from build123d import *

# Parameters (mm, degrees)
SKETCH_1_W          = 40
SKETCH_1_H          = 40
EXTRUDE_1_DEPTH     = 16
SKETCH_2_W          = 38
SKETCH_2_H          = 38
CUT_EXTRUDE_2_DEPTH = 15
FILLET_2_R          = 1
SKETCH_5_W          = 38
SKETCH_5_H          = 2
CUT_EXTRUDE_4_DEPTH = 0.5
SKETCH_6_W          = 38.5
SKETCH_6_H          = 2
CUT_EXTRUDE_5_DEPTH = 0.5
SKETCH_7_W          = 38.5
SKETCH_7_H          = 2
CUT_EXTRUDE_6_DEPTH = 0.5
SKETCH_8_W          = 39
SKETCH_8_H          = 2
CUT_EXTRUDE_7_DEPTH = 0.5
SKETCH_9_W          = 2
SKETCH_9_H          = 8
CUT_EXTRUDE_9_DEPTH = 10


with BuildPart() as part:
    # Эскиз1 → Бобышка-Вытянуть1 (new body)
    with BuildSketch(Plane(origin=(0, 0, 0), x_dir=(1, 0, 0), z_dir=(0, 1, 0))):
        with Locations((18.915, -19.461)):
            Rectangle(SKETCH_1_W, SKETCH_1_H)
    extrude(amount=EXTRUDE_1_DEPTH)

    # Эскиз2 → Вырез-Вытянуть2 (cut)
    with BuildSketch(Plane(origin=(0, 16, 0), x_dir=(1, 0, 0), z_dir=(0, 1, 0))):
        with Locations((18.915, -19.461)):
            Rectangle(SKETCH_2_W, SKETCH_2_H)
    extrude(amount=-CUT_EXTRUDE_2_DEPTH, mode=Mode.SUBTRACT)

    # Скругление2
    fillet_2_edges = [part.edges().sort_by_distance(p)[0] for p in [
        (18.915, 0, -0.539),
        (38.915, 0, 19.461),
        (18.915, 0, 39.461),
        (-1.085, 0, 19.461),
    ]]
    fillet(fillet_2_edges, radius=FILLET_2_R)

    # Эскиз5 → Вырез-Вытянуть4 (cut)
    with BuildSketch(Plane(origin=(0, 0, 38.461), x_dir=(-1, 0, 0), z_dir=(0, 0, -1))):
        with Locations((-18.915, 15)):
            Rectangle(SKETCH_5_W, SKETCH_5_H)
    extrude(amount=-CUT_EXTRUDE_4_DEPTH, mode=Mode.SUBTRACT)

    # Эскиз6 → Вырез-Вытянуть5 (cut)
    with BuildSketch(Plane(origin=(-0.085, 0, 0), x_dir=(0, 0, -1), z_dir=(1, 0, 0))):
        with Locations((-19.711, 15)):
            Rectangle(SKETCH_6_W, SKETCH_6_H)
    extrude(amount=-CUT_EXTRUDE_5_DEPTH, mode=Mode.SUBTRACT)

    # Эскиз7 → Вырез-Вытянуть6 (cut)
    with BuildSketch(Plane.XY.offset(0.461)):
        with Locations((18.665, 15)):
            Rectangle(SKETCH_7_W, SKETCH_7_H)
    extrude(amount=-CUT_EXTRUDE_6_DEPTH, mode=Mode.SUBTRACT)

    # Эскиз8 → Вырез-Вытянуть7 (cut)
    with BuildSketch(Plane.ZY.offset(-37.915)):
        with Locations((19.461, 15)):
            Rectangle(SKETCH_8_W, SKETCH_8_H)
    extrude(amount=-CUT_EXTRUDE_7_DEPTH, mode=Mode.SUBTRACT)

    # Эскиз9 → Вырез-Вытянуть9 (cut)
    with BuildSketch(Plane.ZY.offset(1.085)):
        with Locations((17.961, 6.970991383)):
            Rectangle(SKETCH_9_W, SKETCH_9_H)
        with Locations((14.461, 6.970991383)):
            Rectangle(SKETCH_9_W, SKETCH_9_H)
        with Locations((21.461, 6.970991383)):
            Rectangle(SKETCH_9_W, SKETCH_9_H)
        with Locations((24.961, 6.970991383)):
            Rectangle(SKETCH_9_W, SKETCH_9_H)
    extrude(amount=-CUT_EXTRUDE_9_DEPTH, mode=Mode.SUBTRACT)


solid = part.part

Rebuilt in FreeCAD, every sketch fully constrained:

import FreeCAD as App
import Part
import Sketcher
from FreeCAD import Vector


def edges_at(feature, points):
    """Names of the edges that pass closest to the given points."""
    edges = feature.Shape.Edges
    near = lambda p: min(range(len(edges)), key=lambda i: edges[i].distToShape(Part.Vertex(*p))[0])
    return sorted({f"Edge{near(p) + 1}" for p in points})


def add_polygon(sketch, points):
    """Adds a closed chain of lines whose ends are joined by coincident constraints."""
    first, n = sketch.GeometryCount, len(points)
    for a, b in zip(points, points[1:] + points[:1]):
        sketch.addGeometry(Part.LineSegment(App.Vector(*a, 0), App.Vector(*b, 0)), False)
    for i in range(n):
        sketch.addConstraint(Sketcher.Constraint("Coincident", first + i, 2, first + (i + 1) % n, 1))

doc = App.newDocument("Part")
params = doc.addObject("Spreadsheet::Sheet", "Params")
for row, (alias, value) in enumerate([
    ("sketch1_width", "40 mm"),
    ("pad1_length", "16 mm"),
    ("sketch2_width", "38 mm"),
    ("pocket1_length", "15 mm"),
    ("fillet_radius", "1 mm"),
    ("sketch3_width", "38 mm"),
    ("sketch3_height", "2 mm"),
    ("pocket2_length", "0.5 mm"),
    ("sketch4_width", "2 mm"),
    ("sketch4_height", "38.5 mm"),
    ("pocket3_length", "0.5 mm"),
    ("sketch5_height", "2 mm"),
    ("sketch5_width", "38.5 mm"),
    ("pocket4_length", "0.5 mm"),
    ("sketch6_width", "2 mm"),
    ("sketch6_height", "39 mm"),
    ("pocket5_length", "0.5 mm"),
    ("sketch7_width", "8 mm"),
    ("sketch7_height", "2 mm"),
    ("pocket6_length", "10 mm"),
], start=1):
    params.set(f"A{row}", alias)
    params.set(f"B{row}", "=" + value)
    params.setAlias(f"B{row}", alias)

body = doc.addObject("PartDesign::Body", "Body")

# Sketch on XZ plane
sketch1 = doc.addObject("Sketcher::SketchObject", "Sketch")
body.addObject(sketch1)
sketch1.AttachmentSupport = (doc.XZ_Plane, [""])
sketch1.MapMode = "FlatFace"
add_polygon(sketch1, [(-1, -1), (-1, 39), (39, 39), (39, -1)])  # lines 0-3
sketch1.addConstraint([
    Sketcher.Constraint("Vertical", 0),
    Sketcher.Constraint("Horizontal", 1),
    Sketcher.Constraint("Vertical", 2),
    Sketcher.Constraint("Horizontal", 3),
    Sketcher.Constraint("Equal", 3, 0),
    Sketcher.Constraint("DistanceX", 1, 1, 1, 2, 40.0),
    Sketcher.Constraint("DistanceX", 0, 2, -1, 1, 1.085),
    Sketcher.Constraint("DistanceY", -1, 1, 0, 2, 39.461),
])
sketch1.setExpression("Constraints[9]", "Params.sketch1_width")
pad1 = doc.addObject("PartDesign::Pad", "Pad")
body.addObject(pad1)
pad1.Profile = sketch1
pad1.setExpression("Length", "Params.pad1_length")
pad1.Reversed = True

# Sketch on XZ plane
sketch2 = doc.addObject("Sketcher::SketchObject", "Sketch001")
body.addObject(sketch2)
sketch2.AttachmentSupport = (doc.XZ_Plane, [""])
sketch2.MapMode = "FlatFace"
sketch2.AttachmentOffset = App.Placement(Vector(0, 0, -16), App.Rotation())
add_polygon(sketch2, [(0, 0), (0, 38), (38, 38), (38, 0)])  # lines 0-3
sketch2.addConstraint([
    Sketcher.Constraint("Vertical", 0),
    Sketcher.Constraint("Horizontal", 1),
    Sketcher.Constraint("Vertical", 2),
    Sketcher.Constraint("Horizontal", 3),
    Sketcher.Constraint("Equal", 3, 0),
    Sketcher.Constraint("DistanceX", 1, 1, 1, 2, 38.0),
    Sketcher.Constraint("DistanceX", 0, 2, -1, 1, 0.085),
    Sketcher.Constraint("DistanceY", -1, 1, 0, 2, 38.461),
])
sketch2.setExpression("Constraints[9]", "Params.sketch2_width")
pocket1 = doc.addObject("PartDesign::Pocket", "Pocket")
body.addObject(pocket1)
pocket1.Profile = sketch2
pocket1.setExpression("Length", "Params.pocket1_length")
pocket1.Reversed = True
doc.recompute()

fillet = doc.addObject("PartDesign::Fillet", "Fillet")
body.addObject(fillet)
fillet.Base = (pocket1, edges_at(pocket1, [
    (18.915, 0, -0.539),
    (38.915, 0, 19.461),
    (18.915, 0, 39.461),
    (-1.085, 0, 19.461),
]))
fillet.setExpression("Radius", "Params.fillet_radius")

# Sketch on XY plane
sketch3 = doc.addObject("Sketcher::SketchObject", "Sketch002")
body.addObject(sketch3)
sketch3.AttachmentSupport = (doc.XY_Plane, [""])
sketch3.MapMode = "FlatFace"
sketch3.AttachmentOffset = App.Placement(Vector(0, 0, 38.461), App.Rotation())
add_polygon(sketch3, [(37.9, 16), (37.9, 14), (-0.1, 14), (-0.1, 16)])  # lines 0-3
sketch3.addConstraint([
    Sketcher.Constraint("Vertical", 0),
    Sketcher.Constraint("Horizontal", 1),
    Sketcher.Constraint("Vertical", 2),
    Sketcher.Constraint("Horizontal", 3),
    Sketcher.Constraint("DistanceX", 1, 2, 1, 1, 38.0),
    Sketcher.Constraint("DistanceY", 0, 2, 0, 1, 2.0),
    Sketcher.Constraint("DistanceY", -1, 1, 0, 2, 14.0),
    Sketcher.Constraint("DistanceX", -1, 1, 0, 2, 37.915),
])
sketch3.setExpression("Constraints[8]", "Params.sketch3_width")
sketch3.setExpression("Constraints[9]", "Params.sketch3_height")
pocket2 = doc.addObject("PartDesign::Pocket", "Pocket001")
body.addObject(pocket2)
pocket2.Profile = sketch3
pocket2.setExpression("Length", "Params.pocket2_length")
pocket2.Reversed = True

# Sketch on YZ plane
sketch4 = doc.addObject("Sketcher::SketchObject", "Sketch003")
body.addObject(sketch4)
sketch4.AttachmentSupport = (doc.YZ_Plane, [""])
sketch4.MapMode = "FlatFace"
sketch4.AttachmentOffset = App.Placement(Vector(0, 0, -0.085), App.Rotation())
add_polygon(sketch4, [(16, 39), (14, 39), (14, 0.5), (16, 0.5)])  # lines 0-3
sketch4.addConstraint([
    Sketcher.Constraint("Horizontal", 0),
    Sketcher.Constraint("Vertical", 1),
    Sketcher.Constraint("Horizontal", 2),
    Sketcher.Constraint("Vertical", 3),
    Sketcher.Constraint("DistanceX", 0, 2, 0, 1, 2.0),
    Sketcher.Constraint("DistanceY", 1, 2, 1, 1, 38.5),
    Sketcher.Constraint("DistanceX", -1, 1, 0, 2, 14.0),
    Sketcher.Constraint("DistanceY", -1, 1, 0, 2, 38.961),
])
sketch4.setExpression("Constraints[8]", "Params.sketch4_width")
sketch4.setExpression("Constraints[9]", "Params.sketch4_height")
pocket3 = doc.addObject("PartDesign::Pocket", "Pocket002")
body.addObject(pocket3)
pocket3.Profile = sketch4
pocket3.setExpression("Length", "Params.pocket3_length")

# Sketch on XY plane
sketch5 = doc.addObject("Sketcher::SketchObject", "Sketch004")
body.addObject(sketch5)
sketch5.AttachmentSupport = (doc.XY_Plane, [""])
sketch5.MapMode = "FlatFace"
sketch5.AttachmentOffset = App.Placement(Vector(0, 0, 0.461), App.Rotation())
add_polygon(sketch5, [(-0.6, 16), (-0.6, 14), (37.9, 14), (37.9, 16)])  # lines 0-3
sketch5.addConstraint([
    Sketcher.Constraint("Vertical", 0),
    Sketcher.Constraint("Horizontal", 1),
    Sketcher.Constraint("Vertical", 2),
    Sketcher.Constraint("Horizontal", 3),
    Sketcher.Constraint("DistanceY", 0, 2, 0, 1, 2.0),
    Sketcher.Constraint("DistanceX", 1, 1, 1, 2, 38.5),
    Sketcher.Constraint("DistanceY", -1, 1, 0, 2, 14.0),
    Sketcher.Constraint("DistanceX", 0, 2, -1, 1, 0.585),
])
sketch5.setExpression("Constraints[8]", "Params.sketch5_height")
sketch5.setExpression("Constraints[9]", "Params.sketch5_width")
pocket4 = doc.addObject("PartDesign::Pocket", "Pocket003")
body.addObject(pocket4)
pocket4.Profile = sketch5
pocket4.setExpression("Length", "Params.pocket4_length")

# Sketch on YZ plane
sketch6 = doc.addObject("Sketcher::SketchObject", "Sketch005")
body.addObject(sketch6)
sketch6.AttachmentSupport = (doc.YZ_Plane, [""])
sketch6.MapMode = "FlatFace"
sketch6.AttachmentOffset = App.Placement(Vector(0, 0, 37.915), App.Rotation())
add_polygon(sketch6, [(16, 0), (14, 0), (14, 39), (16, 39)])  # lines 0-3
sketch6.addConstraint([
    Sketcher.Constraint("Horizontal", 0),
    Sketcher.Constraint("Vertical", 1),
    Sketcher.Constraint("Horizontal", 2),
    Sketcher.Constraint("Vertical", 3),
    Sketcher.Constraint("DistanceX", 0, 2, 0, 1, 2.0),
    Sketcher.Constraint("DistanceY", 1, 1, 1, 2, 39.0),
    Sketcher.Constraint("DistanceX", -1, 1, 0, 2, 14.0),
    Sketcher.Constraint("DistanceY", 0, 2, -1, 1, 0.039),
])
sketch6.setExpression("Constraints[8]", "Params.sketch6_width")
sketch6.setExpression("Constraints[9]", "Params.sketch6_height")
pocket5 = doc.addObject("PartDesign::Pocket", "Pocket004")
body.addObject(pocket5)
pocket5.Profile = sketch6
pocket5.setExpression("Length", "Params.pocket5_length")
pocket5.Reversed = True

# Sketch on YZ plane
sketch7 = doc.addObject("Sketcher::SketchObject", "Sketch006")
body.addObject(sketch7)
sketch7.AttachmentSupport = (doc.YZ_Plane, [""])
sketch7.MapMode = "FlatFace"
sketch7.AttachmentOffset = App.Placement(Vector(0, 0, -1.085), App.Rotation())
add_polygon(sketch7, [(11, 17), (3, 17), (3, 19), (11, 19)])  # lines 0-3
add_polygon(sketch7, [(11, 13.5), (3, 13.5), (3, 15.5), (11, 15.5)])  # lines 4-7
add_polygon(sketch7, [(11, 20.5), (3, 20.5), (3, 22.5), (11, 22.5)])  # lines 8-11
add_polygon(sketch7, [(11, 24), (3, 24), (3, 26), (11, 26)])  # lines 12-15
sketch7.addConstraint([
    Sketcher.Constraint("Horizontal", 0),
    Sketcher.Constraint("Vertical", 1),
    Sketcher.Constraint("Horizontal", 2),
    Sketcher.Constraint("Vertical", 3),
    Sketcher.Constraint("Horizontal", 4),
    Sketcher.Constraint("Vertical", 5),
    Sketcher.Constraint("Horizontal", 6),
    Sketcher.Constraint("Vertical", 7),
    Sketcher.Constraint("Horizontal", 8),
    Sketcher.Constraint("Vertical", 9),
    Sketcher.Constraint("Horizontal", 10),
    Sketcher.Constraint("Vertical", 11),
    Sketcher.Constraint("Horizontal", 12),
    Sketcher.Constraint("Vertical", 13),
    Sketcher.Constraint("Horizontal", 14),
    Sketcher.Constraint("Vertical", 15),
    Sketcher.Constraint("Vertical", 1, 2, 4, 2),
    Sketcher.Constraint("Vertical", 3, 2, 6, 2),
    Sketcher.Constraint("Vertical", 5, 2, 8, 2),
    Sketcher.Constraint("Vertical", 7, 2, 10, 2),
    Sketcher.Constraint("Vertical", 9, 2, 12, 2),
    Sketcher.Constraint("Vertical", 11, 2, 14, 2),
    Sketcher.Constraint("Equal", 3, 5),
    Sketcher.Constraint("Equal", 7, 9),
    Sketcher.Constraint("Equal", 11, 13),
    Sketcher.Constraint("DistanceX", 0, 2, 0, 1, 8.0),
    Sketcher.Constraint("DistanceY", 1, 1, 1, 2, 2.0),
    Sketcher.Constraint("DistanceY", 5, 2, 8, 2, 5.0),
    Sketcher.Constraint("DistanceY", 1, 2, 12, 2, 5.0),
    Sketcher.Constraint("DistanceY", 4, 2, 0, 2, 3.5),
    Sketcher.Constraint("DistanceY", -1, 1, 0, 2, 16.961),
    Sketcher.Constraint("DistanceX", -1, 1, 0, 2, 2.970991),
])
sketch7.setExpression("Constraints[41]", "Params.sketch7_width")
sketch7.setExpression("Constraints[42]", "Params.sketch7_height")
pocket6 = doc.addObject("PartDesign::Pocket", "Pocket005")
body.addObject(pocket6)
pocket6.Profile = sketch7
pocket6.setExpression("Length", "Params.pocket6_length")
pocket6.Reversed = True

doc.recompute()
